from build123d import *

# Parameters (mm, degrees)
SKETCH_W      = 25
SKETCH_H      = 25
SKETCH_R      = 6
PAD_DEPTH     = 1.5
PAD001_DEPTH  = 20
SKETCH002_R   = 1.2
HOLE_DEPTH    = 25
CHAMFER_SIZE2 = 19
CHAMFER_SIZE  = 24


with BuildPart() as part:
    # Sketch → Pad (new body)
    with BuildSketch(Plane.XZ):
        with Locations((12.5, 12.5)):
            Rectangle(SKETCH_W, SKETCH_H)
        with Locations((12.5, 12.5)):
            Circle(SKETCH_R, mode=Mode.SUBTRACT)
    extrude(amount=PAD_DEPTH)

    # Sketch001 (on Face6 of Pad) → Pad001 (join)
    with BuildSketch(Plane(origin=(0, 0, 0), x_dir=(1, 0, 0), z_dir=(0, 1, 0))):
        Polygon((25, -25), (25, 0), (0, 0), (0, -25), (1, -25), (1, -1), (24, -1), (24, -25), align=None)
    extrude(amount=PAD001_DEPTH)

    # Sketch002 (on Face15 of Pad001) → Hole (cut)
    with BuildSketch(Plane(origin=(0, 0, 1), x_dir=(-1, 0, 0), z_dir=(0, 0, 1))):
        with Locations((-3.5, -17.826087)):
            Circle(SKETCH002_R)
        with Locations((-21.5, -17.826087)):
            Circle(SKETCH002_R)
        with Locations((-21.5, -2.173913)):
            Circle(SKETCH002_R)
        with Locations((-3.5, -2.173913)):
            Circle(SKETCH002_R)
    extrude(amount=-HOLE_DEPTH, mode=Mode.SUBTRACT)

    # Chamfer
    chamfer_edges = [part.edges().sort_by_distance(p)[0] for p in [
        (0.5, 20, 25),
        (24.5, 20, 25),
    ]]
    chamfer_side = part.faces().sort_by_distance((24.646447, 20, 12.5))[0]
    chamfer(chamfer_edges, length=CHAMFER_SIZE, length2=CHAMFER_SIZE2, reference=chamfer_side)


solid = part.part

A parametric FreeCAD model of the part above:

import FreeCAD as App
import Part
import Sketcher
from FreeCAD import Vector


def edges_at(feature, points):
    """Names of the edges that pass closest to the given points."""
    edges = feature.Shape.Edges
    near = lambda p: min(range(len(edges)), key=lambda i: edges[i].distToShape(Part.Vertex(*p))[0])
    return sorted({f"Edge{near(p) + 1}" for p in points})


def add_polygon(sketch, points):
    """Adds a closed chain of lines whose ends are joined by coincident constraints."""
    first, n = sketch.GeometryCount, len(points)
    for a, b in zip(points, points[1:] + points[:1]):
        sketch.addGeometry(Part.LineSegment(App.Vector(*a, 0), App.Vector(*b, 0)), False)
    for i in range(n):
        sketch.addConstraint(Sketcher.Constraint("Coincident", first + i, 2, first + (i + 1) % n, 1))

doc = App.newDocument("Part")
body = doc.addObject("PartDesign::Body", "Body")

# Sketch on XZ plane
sketch1 = body.newObject("Sketcher::SketchObject", "Sketch")
sketch1.AttachmentSupport = (doc.getObject("XZ_Plane"), [""])
sketch1.MapMode = "FlatFace"
add_polygon(sketch1, [(0, 25), (0, 0), (25, 0), (25, 25)])  # lines 0-3
sketch1.addGeometry(Part.Circle(Vector(12, 12, 0), Vector(0, 0, 1), 6), False)  # 4
sketch1.addConstraint(Sketcher.Constraint("Vertical", 0))
sketch1.addConstraint(Sketcher.Constraint("Horizontal", 1))
sketch1.addConstraint(Sketcher.Constraint("Vertical", 2))
sketch1.addConstraint(Sketcher.Constraint("Horizontal", 3))
sketch1.addConstraint(Sketcher.Constraint("Coincident", 0, 2, -1, 1))
sketch1.addConstraint(Sketcher.Constraint("Equal", 3, 0))
sketch1.addConstraint(Sketcher.Constraint("Diameter", 4, 12.0))
sketch1.addConstraint(Sketcher.Constraint("DistanceX", 1, 1, 1, 2, 25.0))
sketch1.addConstraint(Sketcher.Constraint("DistanceX", -1, 1, 4, 3, 12.5))
sketch1.addConstraint(Sketcher.Constraint("DistanceY", -1, 1, 4, 3, 12.5))
pad1 = body.newObject("PartDesign::Pad", "Pad")
pad1.Profile = sketch1
pad1.Length = 1.5

# Sketch on XZ plane
sketch2 = body.newObject("Sketcher::SketchObject", "Sketch001")
sketch2.AttachmentSupport = (doc.getObject("XZ_Plane"), [""])
sketch2.MapMode = "FlatFace"
add_polygon(sketch2, [(25, 25), (25, 0), (0, 0), (0, 25), (1, 25), (1, 1), (24, 1), (24, 25)])  # lines 0-7
sketch2.addConstraint(Sketcher.Constraint("Vertical", 0))
sketch2.addConstraint(Sketcher.Constraint("Horizontal", 1))
sketch2.addConstraint(Sketcher.Constraint("Vertical", 2))
sketch2.addConstraint(Sketcher.Constraint("Horizontal", 3))
sketch2.addConstraint(Sketcher.Constraint("Vertical", 4))
sketch2.addConstraint(Sketcher.Constraint("Horizontal", 5))
sketch2.addConstraint(Sketcher.Constraint("Vertical", 6))
sketch2.addConstraint(Sketcher.Constraint("Horizontal", 7))
sketch2.addConstraint(Sketcher.Constraint("Coincident", 1, 2, -1, 1))
sketch2.addConstraint(Sketcher.Constraint("Horizontal", 3, 2, 6, 2))
sketch2.addConstraint(Sketcher.Constraint("Equal", 3, 7))
sketch2.addConstraint(Sketcher.Constraint("Equal", 1, 0))
sketch2.addConstraint(Sketcher.Constraint("DistanceX", 1, 2, 1, 1, 25.0))
sketch2.addConstraint(Sketcher.Constraint("DistanceX", 3, 1, 3, 2, 1.0))
sketch2.addConstraint(Sketcher.Constraint("DistanceY", 4, 2, 4, 1, 24.0))
pad2 = body.newObject("PartDesign::Pad", "Pad001")
pad2.Profile = sketch2
pad2.Length = 20
pad2.Reversed = True

# Sketch on XY plane
sketch3 = body.newObject("Sketcher::SketchObject", "Sketch002")
sketch3.AttachmentSupport = (doc.getObject("XY_Plane"), [""])
sketch3.MapMode = "FlatFace"
sketch3.AttachmentOffset = App.Placement(Vector(0, 0, 1), App.Rotation())
sketch3.addGeometry(Part.Circle(Vector(3.5, 17.8, 0), Vector(0, 0, 1), 1.2), False)
sketch3.addGeometry(Part.Circle(Vector(21.5, 17.8, 0), Vector(0, 0, 1), 1.2), False)
sketch3.addGeometry(Part.Circle(Vector(21.5, 2.2, 0), Vector(0, 0, 1), 1.2), False)
sketch3.addGeometry(Part.Circle(Vector(3.5, 2.2, 0), Vector(0, 0, 1), 1.2), False)
sketch3.addConstraint(Sketcher.Constraint("Equal", 0, 1))
sketch3.addConstraint(Sketcher.Constraint("Equal", 1, 2))
sketch3.addConstraint(Sketcher.Constraint("Equal", 2, 3))
sketch3.addConstraint(Sketcher.Constraint("Horizontal", 0, 3, 1, 3))
sketch3.addConstraint(Sketcher.Constraint("Horizontal", 2, 3, 3, 3))
sketch3.addConstraint(Sketcher.Constraint("Vertical", 1, 3, 2, 3))
sketch3.addConstraint(Sketcher.Constraint("Vertical", 0, 3, 3, 3))
sketch3.addConstraint(Sketcher.Constraint("Diameter", 0, 2.4))
sketch3.addConstraint(Sketcher.Constraint("DistanceX", 0, 3, 1, 3, 18.0))
sketch3.addConstraint(Sketcher.Constraint("DistanceX", -1, 1, 0, 3, 3.5))
sketch3.addConstraint(Sketcher.Constraint("DistanceY", -1, 1, 0, 3, 17.826087))
sketch3.addConstraint(Sketcher.Constraint("DistanceY", -1, 1, 2, 3, 2.173913))
pocket1 = body.newObject("PartDesign::Pocket", "Pocket")
pocket1.Profile = sketch3
pocket1.Length = 25
doc.recompute()

chamfer = body.newObject("PartDesign::Chamfer", "Chamfer")
chamfer.Base = (pocket1, edges_at(pocket1, [(0.5, 20, 25), (24.5, 20, 25)]))
chamfer.ChamferType = "Two distances"
chamfer.Size = 24
chamfer.Size2 = 19
chamfer.FlipDirection = True

doc.recompute()
